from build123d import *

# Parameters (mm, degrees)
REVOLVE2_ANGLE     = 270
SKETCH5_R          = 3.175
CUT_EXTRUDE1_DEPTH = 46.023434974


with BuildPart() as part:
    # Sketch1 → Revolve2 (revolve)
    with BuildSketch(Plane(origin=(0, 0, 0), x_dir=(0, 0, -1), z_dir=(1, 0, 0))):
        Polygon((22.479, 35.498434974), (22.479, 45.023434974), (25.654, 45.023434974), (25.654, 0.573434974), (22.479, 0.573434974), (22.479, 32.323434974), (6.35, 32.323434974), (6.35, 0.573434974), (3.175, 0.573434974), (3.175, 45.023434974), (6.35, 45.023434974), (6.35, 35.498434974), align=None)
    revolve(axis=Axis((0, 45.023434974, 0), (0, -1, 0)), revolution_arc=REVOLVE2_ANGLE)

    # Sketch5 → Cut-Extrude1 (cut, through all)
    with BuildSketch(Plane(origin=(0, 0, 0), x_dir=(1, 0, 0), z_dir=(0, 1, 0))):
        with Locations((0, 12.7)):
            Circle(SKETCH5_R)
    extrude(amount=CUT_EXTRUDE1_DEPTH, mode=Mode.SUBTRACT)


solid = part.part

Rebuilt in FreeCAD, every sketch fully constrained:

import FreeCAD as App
import Part
import Sketcher
from FreeCAD import Vector
Q = App.Units.Quantity


def add_polygon(sketch, points):
    """Adds a closed chain of lines whose ends are joined by coincident constraints."""
    first, n = sketch.GeometryCount, len(points)
    for a, b in zip(points, points[1:] + points[:1]):
        sketch.addGeometry(Part.LineSegment(App.Vector(*a, 0), App.Vector(*b, 0)), False)
    for i in range(n):
        sketch.addConstraint(Sketcher.Constraint("Coincident", first + i, 2, first + (i + 1) % n, 1))

doc = App.newDocument("Part")
body = doc.addObject("PartDesign::Body", "Body")

sketch1 = doc.addObject("Sketcher::SketchObject", "Sketch")
body.addObject(sketch1)
sketch1.AttachmentSupport = (doc.YZ_Plane, [""])
sketch1.MapMode = "FlatFace"
add_polygon(sketch1, [(45.023435, -22.479), (35.498435, -22.479), (35.498435, -6.35), (45.023435, -6.35), (45.023435, -3.175), (0.573435, -3.175), (0.573435, -6.35), (32.323435, -6.35), (32.323435, -22.479), (0.573435, -22.479), (0.573435, -25.654), (45.023435, -25.654)])
sketch1.addConstraint(Sketcher.Constraint("Horizontal", 0))
sketch1.addConstraint(Sketcher.Constraint("Vertical", 1))
sketch1.addConstraint(Sketcher.Constraint("Horizontal", 2))
sketch1.addConstraint(Sketcher.Constraint("Vertical", 3))
sketch1.addConstraint(Sketcher.Constraint("Horizontal", 4))
sketch1.addConstraint(Sketcher.Constraint("Vertical", 5))
sketch1.addConstraint(Sketcher.Constraint("Horizontal", 6))
sketch1.addConstraint(Sketcher.Constraint("Vertical", 7))
sketch1.addConstraint(Sketcher.Constraint("Horizontal", 8))
sketch1.addConstraint(Sketcher.Constraint("Vertical", 9))
sketch1.addConstraint(Sketcher.Constraint("Horizontal", 10))
sketch1.addConstraint(Sketcher.Constraint("Vertical", 11))
sketch1.addConstraint(Sketcher.Constraint("Horizontal", 2, 2, 5, 2))
sketch1.addConstraint(Sketcher.Constraint("Horizontal", 0, 2, 7, 2))
sketch1.addConstraint(Sketcher.Constraint("Vertical", 5, 2, 8, 2))
sketch1.addConstraint(Sketcher.Constraint("Vertical", 3, 2, 10, 2))
sketch1.addConstraint(Sketcher.Constraint("Equal", 5, 9))
sketch1.addConstraint(Sketcher.Constraint("DistanceX", 4, 2, 4, 1, Q("1.75 in")))
sketch1.addConstraint(Sketcher.Constraint("DistanceX", 6, 1, 6, 2, Q("1.25 in")))
sketch1.addConstraint(Sketcher.Constraint("DistanceX", 0, 2, 0, 1, Q("0.375 in")))
sketch1.addConstraint(Sketcher.Constraint("DistanceY", 1, 1, 1, 2, Q("0.635 in")))
sketch1.addConstraint(Sketcher.Constraint("DistanceY", 3, 1, 3, 2, Q("0.125 in")))
sketch1.addConstraint(Sketcher.Constraint("DistanceY", 1, 2, -1, 1, Q("0.25 in")))
sketch1.addConstraint(Sketcher.Constraint("DistanceX", -1, 1, 0, 2, Q("35.498435 mm")))
revolution = doc.addObject("PartDesign::Revolution", "Revolution")
body.addObject(revolution)
revolution.Profile = sketch1
revolution.ReferenceAxis = (sketch1, ["H_Axis"])
revolution.Angle = 270
revolution.Reversed = True

sketch2 = doc.addObject("Sketcher::SketchObject", "Sketch001")
body.addObject(sketch2)
sketch2.AttachmentSupport = (doc.XZ_Plane, [""])
sketch2.MapMode = "FlatFace"
sketch2.addGeometry(Part.Circle(Vector(0, -12.7, 0), Vector(0, 0, 1), 3.175), False)
sketch2.addConstraint(Sketcher.Constraint("PointOnObject", 0, 3, -2))
sketch2.addConstraint(Sketcher.Constraint("Diameter", 0, Q("0.25 in")))
sketch2.addConstraint(Sketcher.Constraint("DistanceY", 0, 3, -1, 1, Q("0.5 in")))
pocket1 = doc.addObject("PartDesign::Pocket", "Pocket")
body.addObject(pocket1)
pocket1.Profile = sketch2
pocket1.Type = "ThroughAll"

doc.recompute()
